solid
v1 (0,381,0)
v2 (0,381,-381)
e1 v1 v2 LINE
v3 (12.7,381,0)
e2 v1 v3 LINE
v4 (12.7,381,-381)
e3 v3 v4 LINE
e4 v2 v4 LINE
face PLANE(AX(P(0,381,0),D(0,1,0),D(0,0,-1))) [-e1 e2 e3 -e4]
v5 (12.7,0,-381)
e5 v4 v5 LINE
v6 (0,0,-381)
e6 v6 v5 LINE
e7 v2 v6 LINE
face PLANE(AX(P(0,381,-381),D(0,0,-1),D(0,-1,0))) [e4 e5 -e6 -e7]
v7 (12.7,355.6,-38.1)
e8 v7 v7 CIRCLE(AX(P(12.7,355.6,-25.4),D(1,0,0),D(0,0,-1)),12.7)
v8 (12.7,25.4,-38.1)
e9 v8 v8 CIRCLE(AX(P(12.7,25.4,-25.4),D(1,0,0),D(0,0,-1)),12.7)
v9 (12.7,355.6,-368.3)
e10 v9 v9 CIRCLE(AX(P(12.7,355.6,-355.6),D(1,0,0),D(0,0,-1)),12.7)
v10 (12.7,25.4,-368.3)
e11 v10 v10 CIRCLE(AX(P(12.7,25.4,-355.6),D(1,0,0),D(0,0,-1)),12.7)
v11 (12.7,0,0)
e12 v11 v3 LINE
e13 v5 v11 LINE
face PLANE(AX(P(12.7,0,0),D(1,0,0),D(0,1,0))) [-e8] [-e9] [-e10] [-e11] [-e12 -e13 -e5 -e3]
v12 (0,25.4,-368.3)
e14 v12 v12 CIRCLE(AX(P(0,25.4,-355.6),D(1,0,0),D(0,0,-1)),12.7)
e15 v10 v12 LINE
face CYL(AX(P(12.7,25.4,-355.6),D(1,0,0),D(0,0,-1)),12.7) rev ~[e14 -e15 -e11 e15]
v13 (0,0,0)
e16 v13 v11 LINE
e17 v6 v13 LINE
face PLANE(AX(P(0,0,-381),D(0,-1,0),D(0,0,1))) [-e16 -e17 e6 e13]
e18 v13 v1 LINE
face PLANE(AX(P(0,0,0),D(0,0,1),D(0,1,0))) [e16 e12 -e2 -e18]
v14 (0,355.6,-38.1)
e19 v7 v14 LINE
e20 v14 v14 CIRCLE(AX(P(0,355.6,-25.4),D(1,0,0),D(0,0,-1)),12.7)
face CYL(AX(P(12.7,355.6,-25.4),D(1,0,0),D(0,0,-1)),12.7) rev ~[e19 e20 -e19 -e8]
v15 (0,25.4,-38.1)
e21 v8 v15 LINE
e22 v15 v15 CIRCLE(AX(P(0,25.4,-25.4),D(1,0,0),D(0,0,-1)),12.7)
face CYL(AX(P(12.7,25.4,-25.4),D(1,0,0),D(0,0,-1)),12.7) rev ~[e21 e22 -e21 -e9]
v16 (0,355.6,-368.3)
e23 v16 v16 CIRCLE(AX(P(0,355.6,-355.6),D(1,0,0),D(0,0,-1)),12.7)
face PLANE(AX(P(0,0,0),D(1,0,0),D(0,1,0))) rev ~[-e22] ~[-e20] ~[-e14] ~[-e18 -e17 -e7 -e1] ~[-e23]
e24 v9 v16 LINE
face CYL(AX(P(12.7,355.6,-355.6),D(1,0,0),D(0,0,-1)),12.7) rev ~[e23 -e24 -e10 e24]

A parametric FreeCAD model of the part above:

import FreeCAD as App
import Part
import Sketcher
Q = App.Units.Quantity


def add_polygon(sketch, points):
    """Adds a closed chain of lines whose ends are joined by coincident constraints."""
    first, n = sketch.GeometryCount, len(points)
    for a, b in zip(points, points[1:] + points[:1]):
        sketch.addGeometry(Part.LineSegment(App.Vector(*a, 0), App.Vector(*b, 0)), False)
    for i in range(n):
        sketch.addConstraint(Sketcher.Constraint("Coincident", first + i, 2, first + (i + 1) % n, 1))

doc = App.newDocument("Part")
body = doc.addObject("PartDesign::Body", "Body")

# Sketch on YZ plane
sketch1 = doc.addObject("Sketcher::SketchObject", "Sketch")
body.addObject(sketch1)
sketch1.AttachmentSupport = (doc.YZ_Plane, [""])
sketch1.MapMode = "FlatFace"
add_polygon(sketch1, [(381, 0), (0, 0), (0, -381), (381, -381)])  # lines 0-3
sketch1.addConstraint([
    Sketcher.Constraint("Horizontal", 0),
    Sketcher.Constraint("Vertical", 1),
    Sketcher.Constraint("Horizontal", 2),
    Sketcher.Constraint("Vertical", 3),
    Sketcher.Constraint("Coincident", 0, 2, -1, 1),
    Sketcher.Constraint("Equal", 2, 1),
    Sketcher.Constraint("DistanceX", 0, 2, 0, 1, Q("15 in")),
])
pad1 = doc.addObject("PartDesign::Pad", "Pad")
body.addObject(pad1)
pad1.Profile = sketch1
pad1.Length = Q("0.5 in")

# Sketch on YZ plane
sketch2 = doc.addObject("Sketcher::SketchObject", "Sketch001")
body.addObject(sketch2)
sketch2.AttachmentSupport = (doc.YZ_Plane, [""])
sketch2.MapMode = "FlatFace"
sketch2.AttachmentOffset = App.Placement(App.Vector(0, 0, 0.5 * 25.4), App.Rotation())
sketch2.addGeometry(Part.Circle(App.Vector(25, -25, 0), App.Vector(0, 0, 1), 13), False)
sketch2.addConstraint([
    Sketcher.Constraint("Diameter", 0, Q("1 in")),
    Sketcher.Constraint("DistanceX", -1, 1, 0, 3, Q("1 in")),
    Sketcher.Constraint("DistanceY", 0, 3, -1, 1, Q("1 in")),
])
pocket1 = doc.addObject("PartDesign::Pocket", "Pocket")
body.addObject(pocket1)
pocket1.Profile = sketch2
pocket1.Length = Q("0.5 in")

# Sketch on YZ plane
sketch3 = doc.addObject("Sketcher::SketchObject", "Sketch002")
body.addObject(sketch3)
sketch3.AttachmentSupport = (doc.YZ_Plane, [""])
sketch3.MapMode = "FlatFace"
sketch3.AttachmentOffset = App.Placement(App.Vector(0, 0, 0.5 * 25.4), App.Rotation())
sketch3.addGeometry(Part.Circle(App.Vector(25, -356, 0), App.Vector(0, 0, 1), 13), False)
sketch3.addConstraint([
    Sketcher.Constraint("Diameter", 0, Q("1 in")),
    Sketcher.Constraint("DistanceX", -1, 1, 0, 3, Q("1 in")),
    Sketcher.Constraint("DistanceY", 0, 3, -1, 1, Q("14 in")),
])
pocket2 = doc.addObject("PartDesign::Pocket", "Pocket001")
body.addObject(pocket2)
pocket2.Profile = sketch3
pocket2.Length = Q("0.5 in")

# Sketch on YZ plane
sketch4 = doc.addObject("Sketcher::SketchObject", "Sketch003")
body.addObject(sketch4)
sketch4.AttachmentSupport = (doc.YZ_Plane, [""])
sketch4.MapMode = "FlatFace"
sketch4.AttachmentOffset = App.Placement(App.Vector(0, 0, 0.5 * 25.4), App.Rotation())
sketch4.addGeometry(Part.Circle(App.Vector(356, -25, 0), App.Vector(0, 0, 1), 13), False)
sketch4.addConstraint([
    Sketcher.Constraint("Diameter", 0, Q("1 in")),
    Sketcher.Constraint("DistanceX", -1, 1, 0, 3, Q("14 in")),
    Sketcher.Constraint("DistanceY", 0, 3, -1, 1, Q("1 in")),
])
pocket3 = doc.addObject("PartDesign::Pocket", "Pocket002")
body.addObject(pocket3)
pocket3.Profile = sketch4
pocket3.Length = Q("0.5 in")

# Sketch on YZ plane
sketch5 = doc.addObject("Sketcher::SketchObject", "Sketch004")
body.addObject(sketch5)
sketch5.AttachmentSupport = (doc.YZ_Plane, [""])
sketch5.MapMode = "FlatFace"
sketch5.AttachmentOffset = App.Placement(App.Vector(0, 0, 0.5 * 25.4), App.Rotation())
sketch5.addGeometry(Part.Circle(App.Vector(356, -356, 0), App.Vector(0, 0, 1), 13), False)
sketch5.addConstraint([
    Sketcher.Constraint("Diameter", 0, Q("1 in")),
    Sketcher.Constraint("DistanceX", -1, 1, 0, 3, Q("14 in")),
    Sketcher.Constraint("DistanceY", 0, 3, -1, 1, Q("14 in")),
])
pocket4 = doc.addObject("PartDesign::Pocket", "Pocket003")
body.addObject(pocket4)
pocket4.Profile = sketch5
pocket4.Length = Q("0.5 in")

doc.recompute()
